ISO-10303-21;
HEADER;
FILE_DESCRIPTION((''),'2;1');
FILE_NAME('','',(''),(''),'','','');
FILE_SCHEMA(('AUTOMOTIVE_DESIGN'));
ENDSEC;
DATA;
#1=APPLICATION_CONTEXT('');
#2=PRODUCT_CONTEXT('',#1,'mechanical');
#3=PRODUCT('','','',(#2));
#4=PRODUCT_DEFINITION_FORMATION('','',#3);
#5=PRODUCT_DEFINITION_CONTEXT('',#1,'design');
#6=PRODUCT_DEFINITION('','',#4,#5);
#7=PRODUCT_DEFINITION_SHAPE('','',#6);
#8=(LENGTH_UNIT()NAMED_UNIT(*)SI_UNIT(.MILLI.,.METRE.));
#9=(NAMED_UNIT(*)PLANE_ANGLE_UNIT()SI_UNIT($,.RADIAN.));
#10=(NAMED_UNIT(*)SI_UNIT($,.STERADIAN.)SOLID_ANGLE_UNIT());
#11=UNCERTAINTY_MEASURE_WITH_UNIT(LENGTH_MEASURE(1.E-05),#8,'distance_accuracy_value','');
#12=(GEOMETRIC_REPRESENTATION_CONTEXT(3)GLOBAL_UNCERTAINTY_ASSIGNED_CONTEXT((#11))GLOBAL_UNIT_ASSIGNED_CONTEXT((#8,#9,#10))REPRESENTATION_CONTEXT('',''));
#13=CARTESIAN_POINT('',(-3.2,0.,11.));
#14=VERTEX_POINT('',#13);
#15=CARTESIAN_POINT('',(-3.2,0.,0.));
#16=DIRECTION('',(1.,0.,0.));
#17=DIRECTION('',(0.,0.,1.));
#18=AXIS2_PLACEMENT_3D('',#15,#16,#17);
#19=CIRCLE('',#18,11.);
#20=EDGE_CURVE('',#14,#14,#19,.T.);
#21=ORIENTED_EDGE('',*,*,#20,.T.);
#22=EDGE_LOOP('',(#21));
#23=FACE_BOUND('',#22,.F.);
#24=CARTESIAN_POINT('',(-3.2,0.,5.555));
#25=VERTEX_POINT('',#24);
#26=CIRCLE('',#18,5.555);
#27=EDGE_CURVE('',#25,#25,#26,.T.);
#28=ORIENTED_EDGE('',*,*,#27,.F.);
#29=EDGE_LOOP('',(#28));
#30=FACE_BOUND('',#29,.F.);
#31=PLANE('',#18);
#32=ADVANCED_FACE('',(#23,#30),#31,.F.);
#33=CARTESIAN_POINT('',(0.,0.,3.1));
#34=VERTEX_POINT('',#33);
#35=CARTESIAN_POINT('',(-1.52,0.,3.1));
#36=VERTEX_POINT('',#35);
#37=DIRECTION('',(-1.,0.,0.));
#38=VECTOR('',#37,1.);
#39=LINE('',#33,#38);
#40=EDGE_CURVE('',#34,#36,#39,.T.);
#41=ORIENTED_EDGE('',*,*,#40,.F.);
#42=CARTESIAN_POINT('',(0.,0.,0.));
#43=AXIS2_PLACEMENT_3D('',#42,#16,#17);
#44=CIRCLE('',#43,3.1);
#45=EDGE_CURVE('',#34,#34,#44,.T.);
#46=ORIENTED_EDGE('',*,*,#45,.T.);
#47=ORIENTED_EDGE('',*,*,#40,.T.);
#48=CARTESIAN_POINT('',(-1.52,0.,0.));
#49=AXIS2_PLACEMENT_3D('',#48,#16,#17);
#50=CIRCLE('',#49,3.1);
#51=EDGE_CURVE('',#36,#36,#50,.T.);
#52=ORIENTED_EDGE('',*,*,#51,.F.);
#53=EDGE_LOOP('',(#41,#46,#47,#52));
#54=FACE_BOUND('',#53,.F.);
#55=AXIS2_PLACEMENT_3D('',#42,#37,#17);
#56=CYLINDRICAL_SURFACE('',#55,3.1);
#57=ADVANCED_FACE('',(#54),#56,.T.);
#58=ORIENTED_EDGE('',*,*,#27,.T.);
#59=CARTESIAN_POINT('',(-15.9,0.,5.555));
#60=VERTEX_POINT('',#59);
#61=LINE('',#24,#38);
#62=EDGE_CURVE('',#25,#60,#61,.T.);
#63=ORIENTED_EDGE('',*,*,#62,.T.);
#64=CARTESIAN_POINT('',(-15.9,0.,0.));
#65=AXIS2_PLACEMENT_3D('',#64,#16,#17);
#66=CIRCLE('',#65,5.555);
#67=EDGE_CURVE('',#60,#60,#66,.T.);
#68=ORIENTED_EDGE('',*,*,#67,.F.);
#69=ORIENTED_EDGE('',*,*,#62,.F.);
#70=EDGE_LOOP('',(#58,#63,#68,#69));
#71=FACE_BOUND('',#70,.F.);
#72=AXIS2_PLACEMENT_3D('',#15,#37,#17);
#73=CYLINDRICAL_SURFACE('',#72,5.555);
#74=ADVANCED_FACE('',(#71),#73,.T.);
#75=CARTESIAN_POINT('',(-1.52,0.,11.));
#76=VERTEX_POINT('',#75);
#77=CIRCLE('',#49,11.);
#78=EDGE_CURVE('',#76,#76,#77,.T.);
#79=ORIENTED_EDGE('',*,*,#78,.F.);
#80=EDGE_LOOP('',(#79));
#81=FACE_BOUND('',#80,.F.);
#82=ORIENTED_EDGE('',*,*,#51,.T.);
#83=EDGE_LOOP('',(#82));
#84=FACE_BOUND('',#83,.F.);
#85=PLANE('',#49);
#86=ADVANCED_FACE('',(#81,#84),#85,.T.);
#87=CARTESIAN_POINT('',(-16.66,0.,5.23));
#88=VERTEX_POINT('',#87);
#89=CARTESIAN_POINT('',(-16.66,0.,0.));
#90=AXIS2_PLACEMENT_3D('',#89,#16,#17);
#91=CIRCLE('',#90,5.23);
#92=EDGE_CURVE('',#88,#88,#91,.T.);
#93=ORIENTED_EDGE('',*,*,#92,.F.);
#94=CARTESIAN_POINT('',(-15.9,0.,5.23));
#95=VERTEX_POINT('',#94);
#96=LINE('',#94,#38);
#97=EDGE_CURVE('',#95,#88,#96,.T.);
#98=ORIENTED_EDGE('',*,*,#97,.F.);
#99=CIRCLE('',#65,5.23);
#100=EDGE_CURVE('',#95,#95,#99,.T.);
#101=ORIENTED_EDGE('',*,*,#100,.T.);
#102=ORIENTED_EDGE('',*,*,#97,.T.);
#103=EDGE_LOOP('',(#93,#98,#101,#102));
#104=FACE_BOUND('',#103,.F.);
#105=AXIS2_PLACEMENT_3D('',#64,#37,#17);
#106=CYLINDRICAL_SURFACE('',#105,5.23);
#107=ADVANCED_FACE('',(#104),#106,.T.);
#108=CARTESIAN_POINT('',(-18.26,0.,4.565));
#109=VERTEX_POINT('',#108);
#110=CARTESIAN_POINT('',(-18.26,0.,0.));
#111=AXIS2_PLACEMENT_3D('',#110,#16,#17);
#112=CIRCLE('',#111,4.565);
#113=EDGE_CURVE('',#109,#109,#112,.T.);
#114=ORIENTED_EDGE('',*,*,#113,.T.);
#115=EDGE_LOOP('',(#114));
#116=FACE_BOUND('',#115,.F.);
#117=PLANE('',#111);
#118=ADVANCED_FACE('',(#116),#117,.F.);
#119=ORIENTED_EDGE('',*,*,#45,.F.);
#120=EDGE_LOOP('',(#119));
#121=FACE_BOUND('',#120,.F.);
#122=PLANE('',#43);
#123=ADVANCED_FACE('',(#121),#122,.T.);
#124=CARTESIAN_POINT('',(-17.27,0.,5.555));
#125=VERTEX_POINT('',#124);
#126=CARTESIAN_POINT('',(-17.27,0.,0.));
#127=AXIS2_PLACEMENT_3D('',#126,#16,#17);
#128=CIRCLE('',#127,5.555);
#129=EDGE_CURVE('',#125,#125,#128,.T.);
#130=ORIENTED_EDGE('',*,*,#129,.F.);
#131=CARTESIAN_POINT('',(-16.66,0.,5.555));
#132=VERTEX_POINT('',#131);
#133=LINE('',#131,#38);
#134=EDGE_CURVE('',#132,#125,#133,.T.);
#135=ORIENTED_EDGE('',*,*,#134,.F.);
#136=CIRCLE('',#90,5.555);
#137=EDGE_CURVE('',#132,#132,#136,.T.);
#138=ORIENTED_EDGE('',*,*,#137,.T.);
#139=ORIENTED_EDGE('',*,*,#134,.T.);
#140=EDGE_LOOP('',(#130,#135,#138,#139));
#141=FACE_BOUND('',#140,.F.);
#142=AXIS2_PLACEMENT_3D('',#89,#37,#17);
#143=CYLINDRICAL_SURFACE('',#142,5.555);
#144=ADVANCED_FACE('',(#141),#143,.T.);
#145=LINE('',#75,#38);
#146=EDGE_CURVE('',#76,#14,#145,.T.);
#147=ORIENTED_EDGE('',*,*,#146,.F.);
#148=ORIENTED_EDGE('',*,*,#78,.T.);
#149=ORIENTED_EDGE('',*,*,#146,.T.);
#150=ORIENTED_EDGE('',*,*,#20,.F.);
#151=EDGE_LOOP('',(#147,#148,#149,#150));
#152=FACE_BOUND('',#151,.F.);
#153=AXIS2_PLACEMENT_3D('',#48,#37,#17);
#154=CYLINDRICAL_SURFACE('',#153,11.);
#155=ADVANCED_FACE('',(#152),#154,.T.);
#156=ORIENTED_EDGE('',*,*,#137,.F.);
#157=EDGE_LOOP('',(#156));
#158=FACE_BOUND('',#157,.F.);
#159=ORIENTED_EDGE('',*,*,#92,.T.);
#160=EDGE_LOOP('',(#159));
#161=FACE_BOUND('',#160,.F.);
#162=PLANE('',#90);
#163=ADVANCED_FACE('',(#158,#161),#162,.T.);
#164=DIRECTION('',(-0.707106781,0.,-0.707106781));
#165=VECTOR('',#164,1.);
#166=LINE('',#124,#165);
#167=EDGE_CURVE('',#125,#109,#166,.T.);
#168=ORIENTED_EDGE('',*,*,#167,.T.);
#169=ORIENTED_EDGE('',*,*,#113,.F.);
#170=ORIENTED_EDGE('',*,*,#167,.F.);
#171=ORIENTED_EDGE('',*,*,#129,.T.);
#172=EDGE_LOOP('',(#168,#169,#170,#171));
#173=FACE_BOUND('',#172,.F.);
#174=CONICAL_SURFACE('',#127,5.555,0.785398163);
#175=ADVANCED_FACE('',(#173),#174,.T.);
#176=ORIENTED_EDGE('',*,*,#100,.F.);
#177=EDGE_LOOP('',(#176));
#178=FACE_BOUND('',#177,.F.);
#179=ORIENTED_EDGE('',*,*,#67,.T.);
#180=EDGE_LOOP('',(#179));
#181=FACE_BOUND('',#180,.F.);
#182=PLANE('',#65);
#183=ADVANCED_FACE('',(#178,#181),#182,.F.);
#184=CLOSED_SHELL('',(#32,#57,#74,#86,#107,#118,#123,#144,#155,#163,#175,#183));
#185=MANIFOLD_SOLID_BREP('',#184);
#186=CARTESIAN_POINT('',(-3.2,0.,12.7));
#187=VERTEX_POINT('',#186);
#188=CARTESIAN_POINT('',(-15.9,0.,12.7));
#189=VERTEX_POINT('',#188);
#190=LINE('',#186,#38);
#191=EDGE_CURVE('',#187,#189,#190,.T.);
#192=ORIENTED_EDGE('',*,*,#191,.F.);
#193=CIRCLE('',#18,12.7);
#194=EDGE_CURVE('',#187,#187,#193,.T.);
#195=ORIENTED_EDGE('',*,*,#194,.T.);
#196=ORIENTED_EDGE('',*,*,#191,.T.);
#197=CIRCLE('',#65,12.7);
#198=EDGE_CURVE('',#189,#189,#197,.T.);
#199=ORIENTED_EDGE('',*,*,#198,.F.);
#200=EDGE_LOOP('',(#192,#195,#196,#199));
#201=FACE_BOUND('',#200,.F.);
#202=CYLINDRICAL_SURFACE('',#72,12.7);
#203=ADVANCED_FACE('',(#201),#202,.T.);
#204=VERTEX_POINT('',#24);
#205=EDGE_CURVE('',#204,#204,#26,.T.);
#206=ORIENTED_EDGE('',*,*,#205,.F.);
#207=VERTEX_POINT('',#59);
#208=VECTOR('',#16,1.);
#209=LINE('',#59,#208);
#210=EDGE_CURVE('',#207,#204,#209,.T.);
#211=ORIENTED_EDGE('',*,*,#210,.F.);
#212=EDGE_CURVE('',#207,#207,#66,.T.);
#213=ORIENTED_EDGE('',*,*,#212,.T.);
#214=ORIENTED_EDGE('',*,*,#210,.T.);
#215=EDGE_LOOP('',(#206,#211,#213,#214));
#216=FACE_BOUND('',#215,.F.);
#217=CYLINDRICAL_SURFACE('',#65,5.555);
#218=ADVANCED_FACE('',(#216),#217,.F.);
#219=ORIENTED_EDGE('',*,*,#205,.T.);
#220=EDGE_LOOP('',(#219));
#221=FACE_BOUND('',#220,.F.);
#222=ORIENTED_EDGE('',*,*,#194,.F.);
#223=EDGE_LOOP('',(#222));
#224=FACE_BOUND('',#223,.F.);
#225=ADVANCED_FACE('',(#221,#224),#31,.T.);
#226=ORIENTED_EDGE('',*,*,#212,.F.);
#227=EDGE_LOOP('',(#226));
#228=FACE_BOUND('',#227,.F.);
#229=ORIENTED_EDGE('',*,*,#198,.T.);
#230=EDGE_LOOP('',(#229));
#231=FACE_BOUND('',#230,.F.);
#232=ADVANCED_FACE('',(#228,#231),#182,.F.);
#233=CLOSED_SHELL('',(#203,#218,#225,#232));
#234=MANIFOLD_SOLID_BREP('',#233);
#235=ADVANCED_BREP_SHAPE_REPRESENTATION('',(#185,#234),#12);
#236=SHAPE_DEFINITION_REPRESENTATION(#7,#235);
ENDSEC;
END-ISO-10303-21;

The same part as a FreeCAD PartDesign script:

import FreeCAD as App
import Part
import Sketcher
Q = App.Units.Quantity

doc = App.newDocument("Part")
body = doc.addObject("PartDesign::Body", "Body")

# Sketch on XZ plane
sketch1 = body.newObject("Sketcher::SketchObject", "Sketch")
sketch1.AttachmentSupport = (doc.getObject("XZ_Plane"), [""])
sketch1.MapMode = "FlatFace"
sketch1.addGeometry([
    Part.LineSegment(App.Vector(-18.26, 0, 0), App.Vector(0, 0, 0)),  # 0
    Part.LineSegment(App.Vector(0, 0, 0), App.Vector(0, 3.1, 0)),  # 1
    Part.LineSegment(App.Vector(0, 3.1, 0), App.Vector(-1.52, 3.1, 0)),  # 2
    Part.LineSegment(App.Vector(-1.52, 3.1, 0), App.Vector(-1.52, 11, 0)),  # 3
    Part.LineSegment(App.Vector(-1.52, 11, 0), App.Vector(-3.2, 11, 0)),  # 4
    Part.LineSegment(App.Vector(-3.2, 11, 0), App.Vector(-3.2, 5.555, 0)),  # 5
    Part.LineSegment(App.Vector(-3.2, 5.555, 0), App.Vector(-15.9, 5.555, 0)),  # 6
    Part.LineSegment(App.Vector(-15.9, 5.555, 0), App.Vector(-15.9, 5.23, 0)),  # 7
    Part.LineSegment(App.Vector(-15.9, 5.23, 0), App.Vector(-16.66, 5.23, 0)),  # 8
    Part.LineSegment(App.Vector(-16.66, 5.23, 0), App.Vector(-16.66, 5.555, 0)),  # 9
    Part.LineSegment(App.Vector(-16.66, 5.555, 0), App.Vector(-17.27, 5.555, 0)),  # 10
    Part.LineSegment(App.Vector(-17.27, 5.555, 0), App.Vector(-18.26, 4.565, 0)),  # 11
    Part.LineSegment(App.Vector(-18.26, 4.565, 0), App.Vector(-18.26, 0, 0)),  # 12
], False)
sketch1.addConstraint([
    Sketcher.Constraint("Coincident", 0, 2, 1, 1),
    Sketcher.Constraint("Coincident", 1, 2, 2, 1),
    Sketcher.Constraint("Coincident", 2, 2, 3, 1),
    Sketcher.Constraint("Coincident", 3, 2, 4, 1),
    Sketcher.Constraint("Coincident", 4, 2, 5, 1),
    Sketcher.Constraint("Coincident", 5, 2, 6, 1),
    Sketcher.Constraint("Coincident", 6, 2, 7, 1),
    Sketcher.Constraint("Coincident", 7, 2, 8, 1),
    Sketcher.Constraint("Coincident", 8, 2, 9, 1),
    Sketcher.Constraint("Coincident", 9, 2, 10, 1),
    Sketcher.Constraint("Coincident", 10, 2, 11, 1),
    Sketcher.Constraint("Coincident", 11, 2, 12, 1),
    Sketcher.Constraint("Coincident", 12, 2, 0, 1),
    Sketcher.Constraint("Horizontal", 0),
    Sketcher.Constraint("Vertical", 1),
    Sketcher.Constraint("Horizontal", 2),
    Sketcher.Constraint("Vertical", 3),
    Sketcher.Constraint("Horizontal", 4),
    Sketcher.Constraint("Vertical", 5),
    Sketcher.Constraint("Horizontal", 6),
    Sketcher.Constraint("Vertical", 7),
    Sketcher.Constraint("Horizontal", 8),
    Sketcher.Constraint("Vertical", 9),
    Sketcher.Constraint("Horizontal", 10),
    Sketcher.Constraint("Vertical", 12),
    Sketcher.Constraint("Coincident", 0, 2, -1, 1),
    Sketcher.Constraint("Horizontal", 6, 2, 9, 2),
    Sketcher.Constraint("Angle", 11, Q("-135 deg")),
    Sketcher.Constraint("DistanceX", 6, 2, 6, 1, 12.7),
    Sketcher.Constraint("DistanceY", 1, 1, 1, 2, 3.1),
    Sketcher.Constraint("DistanceY", 3, 1, 3, 2, 7.9),
    Sketcher.Constraint("DistanceX", 0, 1, 0, 2, 18.26),
    Sketcher.Constraint("DistanceX", 2, 2, 2, 1, 1.52),
    Sketcher.Constraint("DistanceX", 4, 2, 4, 1, 1.68),
    Sketcher.Constraint("DistanceX", 8, 2, 8, 1, 0.76),
    Sketcher.Constraint("DistanceX", 10, 2, 10, 1, 0.61),
    Sketcher.Constraint("DistanceY", 5, 2, 5, 1, 5.445),
    Sketcher.Constraint("DistanceY", 7, 2, 7, 1, 0.325),
])
revolution = body.newObject("PartDesign::Revolution", "Revolution")
revolution.Profile = sketch1
revolution.ReferenceAxis = (sketch1, ["H_Axis"])
revolution.Angle = 360
body2 = doc.addObject("PartDesign::Body", "Body001")

# Sketch on XZ plane
sketch2 = body2.newObject("Sketcher::SketchObject", "Sketch001")
sketch2.AttachmentSupport = (doc.getObject("XZ_Plane001"), [""])
sketch2.MapMode = "FlatFace"
sketch2.addGeometry([
    Part.LineSegment(App.Vector(-3.2, 5.555, 0), App.Vector(-3.2, 12.7, 0)),
    Part.LineSegment(App.Vector(-3.2, 12.7, 0), App.Vector(-15.9, 12.7, 0)),
    Part.LineSegment(App.Vector(-15.9, 12.7, 0), App.Vector(-15.9, 5.555, 0)),
    Part.LineSegment(App.Vector(-15.9, 5.555, 0), App.Vector(-3.2, 5.555, 0)),
], False)
sketch2.addConstraint([
    Sketcher.Constraint("Coincident", 0, 2, 1, 1),
    Sketcher.Constraint("Coincident", 1, 2, 2, 1),
    Sketcher.Constraint("Coincident", 2, 2, 3, 1),
    Sketcher.Constraint("Coincident", 3, 2, 0, 1),
    Sketcher.Constraint("Vertical", 0),
    Sketcher.Constraint("Horizontal", 1),
    Sketcher.Constraint("Vertical", 2),
    Sketcher.Constraint("Horizontal", 3),
    Sketcher.Constraint("DistanceX", 1, 2, 1, 1, 12.7),
    Sketcher.Constraint("DistanceX", 0, 2, -1, 1, 3.2),
    Sketcher.Constraint("DistanceY", -1, 1, 0, 2, 12.7),
    Sketcher.Constraint("DistanceY", 0, 1, 0, 2, 7.145),
])
revolution2 = body2.newObject("PartDesign::Revolution", "Revolution001")
revolution2.Profile = sketch2
revolution2.ReferenceAxis = (sketch2, ["H_Axis"])
revolution2.Angle = 360

doc.recompute()
